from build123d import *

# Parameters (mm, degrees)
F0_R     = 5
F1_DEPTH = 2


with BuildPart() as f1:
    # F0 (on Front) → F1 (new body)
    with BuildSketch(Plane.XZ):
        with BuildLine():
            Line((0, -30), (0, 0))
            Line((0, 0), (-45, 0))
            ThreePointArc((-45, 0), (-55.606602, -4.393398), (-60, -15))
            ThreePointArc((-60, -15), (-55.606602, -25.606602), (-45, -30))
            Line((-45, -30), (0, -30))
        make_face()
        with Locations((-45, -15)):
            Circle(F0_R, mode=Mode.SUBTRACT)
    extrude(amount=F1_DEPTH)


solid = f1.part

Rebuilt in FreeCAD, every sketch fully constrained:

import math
import FreeCAD as App
import Part
import Sketcher

V = App.Vector

doc = App.newDocument("Part")
body = doc.addObject("PartDesign::Body", "Body")

# Sketch on XZ plane
sketch1 = doc.addObject("Sketcher::SketchObject", "Sketch")
body.addObject(sketch1)
sketch1.AttachmentSupport = (doc.XZ_Plane, [""])
sketch1.MapMode = "FlatFace"
sketch1.addGeometry(Part.LineSegment(V(0, -30, 0), V(0, 0, 0)), False)
sketch1.addGeometry(Part.LineSegment(V(0, 0, 0), V(-45, 0, 0)), False)
sketch1.addGeometry(Part.ArcOfCircle(Part.Circle(V(-45.000001, -14.999999, 0), V(0, 0, 1), 14.999999), math.radians(89.999996), math.radians(180.000004)), False)
sketch1.addGeometry(Part.ArcOfCircle(Part.Circle(V(-45.000001, -15.000001, 0), V(0, 0, 1), 14.999999), math.radians(179.999996), math.radians(270.000004)), False)
sketch1.addGeometry(Part.LineSegment(V(-45, -30, 0), V(0, -30, 0)), False)
sketch1.addGeometry(Part.Circle(V(-45, -15, 0), V(0, 0, 1), 5), False)
sketch1.addConstraint(Sketcher.Constraint("Coincident", 0, 2, 1, 1))
sketch1.addConstraint(Sketcher.Constraint("Tangent", 1, 2, 2, 1))
sketch1.addConstraint(Sketcher.Constraint("Tangent", 2, 2, 3, 1))
sketch1.addConstraint(Sketcher.Constraint("Tangent", 3, 2, 4, 1))
sketch1.addConstraint(Sketcher.Constraint("Coincident", 4, 2, 0, 1))
sketch1.addConstraint(Sketcher.Constraint("Vertical", 0))
sketch1.addConstraint(Sketcher.Constraint("Horizontal", 1))
sketch1.addConstraint(Sketcher.Constraint("Horizontal", 4))
sketch1.addConstraint(Sketcher.Constraint("Coincident", 0, 2, -1, 1))
sketch1.addConstraint(Sketcher.Constraint("Coincident", 5, 3, 2, 3))
sketch1.addConstraint(Sketcher.Constraint("Equal", 2, 3))
sketch1.addConstraint(Sketcher.Constraint("Horizontal", 5, 3, 2, 2))
sketch1.addConstraint(Sketcher.Constraint("Diameter", 5, 10.0))
sketch1.addConstraint(Sketcher.Constraint("Radius", 2, 14.999999))
sketch1.addConstraint(Sketcher.Constraint("DistanceX", 1, 2, 1, 1, 45.0))
pad1 = doc.addObject("PartDesign::Pad", "Pad")
body.addObject(pad1)
pad1.Profile = sketch1
pad1.Length = 2

doc.recompute()
